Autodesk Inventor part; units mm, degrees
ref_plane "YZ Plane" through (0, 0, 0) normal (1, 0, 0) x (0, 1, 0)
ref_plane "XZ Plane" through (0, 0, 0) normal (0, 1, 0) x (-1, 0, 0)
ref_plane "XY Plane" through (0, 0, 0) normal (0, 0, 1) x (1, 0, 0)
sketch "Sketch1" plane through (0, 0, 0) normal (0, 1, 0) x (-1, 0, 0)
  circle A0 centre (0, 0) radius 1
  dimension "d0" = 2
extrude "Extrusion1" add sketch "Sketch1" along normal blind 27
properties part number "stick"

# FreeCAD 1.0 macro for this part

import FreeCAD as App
import Part
import Sketcher
Q = App.Units.Quantity

doc = App.newDocument("Part")
body = doc.addObject("PartDesign::Body", "Body")

# Sketch on XZ plane
sketch1 = body.newObject("Sketcher::SketchObject", "Sketch")
sketch1.AttachmentSupport = (doc.getObject("XZ_Plane"), [""])
sketch1.MapMode = "FlatFace"
sketch1.addGeometry(Part.Circle(App.Vector(0, 0, 0), App.Vector(0, 0, 1), 1), False)
sketch1.addConstraint(Sketcher.Constraint("Coincident", 0, 3, -1, 1))
sketch1.addConstraint(Sketcher.Constraint("Diameter", 0, Q("2 mm")))
pad1 = body.newObject("PartDesign::Pad", "Pad")
pad1.Profile = sketch1
pad1.Length = 27
pad1.Reversed = True

doc.recompute()
